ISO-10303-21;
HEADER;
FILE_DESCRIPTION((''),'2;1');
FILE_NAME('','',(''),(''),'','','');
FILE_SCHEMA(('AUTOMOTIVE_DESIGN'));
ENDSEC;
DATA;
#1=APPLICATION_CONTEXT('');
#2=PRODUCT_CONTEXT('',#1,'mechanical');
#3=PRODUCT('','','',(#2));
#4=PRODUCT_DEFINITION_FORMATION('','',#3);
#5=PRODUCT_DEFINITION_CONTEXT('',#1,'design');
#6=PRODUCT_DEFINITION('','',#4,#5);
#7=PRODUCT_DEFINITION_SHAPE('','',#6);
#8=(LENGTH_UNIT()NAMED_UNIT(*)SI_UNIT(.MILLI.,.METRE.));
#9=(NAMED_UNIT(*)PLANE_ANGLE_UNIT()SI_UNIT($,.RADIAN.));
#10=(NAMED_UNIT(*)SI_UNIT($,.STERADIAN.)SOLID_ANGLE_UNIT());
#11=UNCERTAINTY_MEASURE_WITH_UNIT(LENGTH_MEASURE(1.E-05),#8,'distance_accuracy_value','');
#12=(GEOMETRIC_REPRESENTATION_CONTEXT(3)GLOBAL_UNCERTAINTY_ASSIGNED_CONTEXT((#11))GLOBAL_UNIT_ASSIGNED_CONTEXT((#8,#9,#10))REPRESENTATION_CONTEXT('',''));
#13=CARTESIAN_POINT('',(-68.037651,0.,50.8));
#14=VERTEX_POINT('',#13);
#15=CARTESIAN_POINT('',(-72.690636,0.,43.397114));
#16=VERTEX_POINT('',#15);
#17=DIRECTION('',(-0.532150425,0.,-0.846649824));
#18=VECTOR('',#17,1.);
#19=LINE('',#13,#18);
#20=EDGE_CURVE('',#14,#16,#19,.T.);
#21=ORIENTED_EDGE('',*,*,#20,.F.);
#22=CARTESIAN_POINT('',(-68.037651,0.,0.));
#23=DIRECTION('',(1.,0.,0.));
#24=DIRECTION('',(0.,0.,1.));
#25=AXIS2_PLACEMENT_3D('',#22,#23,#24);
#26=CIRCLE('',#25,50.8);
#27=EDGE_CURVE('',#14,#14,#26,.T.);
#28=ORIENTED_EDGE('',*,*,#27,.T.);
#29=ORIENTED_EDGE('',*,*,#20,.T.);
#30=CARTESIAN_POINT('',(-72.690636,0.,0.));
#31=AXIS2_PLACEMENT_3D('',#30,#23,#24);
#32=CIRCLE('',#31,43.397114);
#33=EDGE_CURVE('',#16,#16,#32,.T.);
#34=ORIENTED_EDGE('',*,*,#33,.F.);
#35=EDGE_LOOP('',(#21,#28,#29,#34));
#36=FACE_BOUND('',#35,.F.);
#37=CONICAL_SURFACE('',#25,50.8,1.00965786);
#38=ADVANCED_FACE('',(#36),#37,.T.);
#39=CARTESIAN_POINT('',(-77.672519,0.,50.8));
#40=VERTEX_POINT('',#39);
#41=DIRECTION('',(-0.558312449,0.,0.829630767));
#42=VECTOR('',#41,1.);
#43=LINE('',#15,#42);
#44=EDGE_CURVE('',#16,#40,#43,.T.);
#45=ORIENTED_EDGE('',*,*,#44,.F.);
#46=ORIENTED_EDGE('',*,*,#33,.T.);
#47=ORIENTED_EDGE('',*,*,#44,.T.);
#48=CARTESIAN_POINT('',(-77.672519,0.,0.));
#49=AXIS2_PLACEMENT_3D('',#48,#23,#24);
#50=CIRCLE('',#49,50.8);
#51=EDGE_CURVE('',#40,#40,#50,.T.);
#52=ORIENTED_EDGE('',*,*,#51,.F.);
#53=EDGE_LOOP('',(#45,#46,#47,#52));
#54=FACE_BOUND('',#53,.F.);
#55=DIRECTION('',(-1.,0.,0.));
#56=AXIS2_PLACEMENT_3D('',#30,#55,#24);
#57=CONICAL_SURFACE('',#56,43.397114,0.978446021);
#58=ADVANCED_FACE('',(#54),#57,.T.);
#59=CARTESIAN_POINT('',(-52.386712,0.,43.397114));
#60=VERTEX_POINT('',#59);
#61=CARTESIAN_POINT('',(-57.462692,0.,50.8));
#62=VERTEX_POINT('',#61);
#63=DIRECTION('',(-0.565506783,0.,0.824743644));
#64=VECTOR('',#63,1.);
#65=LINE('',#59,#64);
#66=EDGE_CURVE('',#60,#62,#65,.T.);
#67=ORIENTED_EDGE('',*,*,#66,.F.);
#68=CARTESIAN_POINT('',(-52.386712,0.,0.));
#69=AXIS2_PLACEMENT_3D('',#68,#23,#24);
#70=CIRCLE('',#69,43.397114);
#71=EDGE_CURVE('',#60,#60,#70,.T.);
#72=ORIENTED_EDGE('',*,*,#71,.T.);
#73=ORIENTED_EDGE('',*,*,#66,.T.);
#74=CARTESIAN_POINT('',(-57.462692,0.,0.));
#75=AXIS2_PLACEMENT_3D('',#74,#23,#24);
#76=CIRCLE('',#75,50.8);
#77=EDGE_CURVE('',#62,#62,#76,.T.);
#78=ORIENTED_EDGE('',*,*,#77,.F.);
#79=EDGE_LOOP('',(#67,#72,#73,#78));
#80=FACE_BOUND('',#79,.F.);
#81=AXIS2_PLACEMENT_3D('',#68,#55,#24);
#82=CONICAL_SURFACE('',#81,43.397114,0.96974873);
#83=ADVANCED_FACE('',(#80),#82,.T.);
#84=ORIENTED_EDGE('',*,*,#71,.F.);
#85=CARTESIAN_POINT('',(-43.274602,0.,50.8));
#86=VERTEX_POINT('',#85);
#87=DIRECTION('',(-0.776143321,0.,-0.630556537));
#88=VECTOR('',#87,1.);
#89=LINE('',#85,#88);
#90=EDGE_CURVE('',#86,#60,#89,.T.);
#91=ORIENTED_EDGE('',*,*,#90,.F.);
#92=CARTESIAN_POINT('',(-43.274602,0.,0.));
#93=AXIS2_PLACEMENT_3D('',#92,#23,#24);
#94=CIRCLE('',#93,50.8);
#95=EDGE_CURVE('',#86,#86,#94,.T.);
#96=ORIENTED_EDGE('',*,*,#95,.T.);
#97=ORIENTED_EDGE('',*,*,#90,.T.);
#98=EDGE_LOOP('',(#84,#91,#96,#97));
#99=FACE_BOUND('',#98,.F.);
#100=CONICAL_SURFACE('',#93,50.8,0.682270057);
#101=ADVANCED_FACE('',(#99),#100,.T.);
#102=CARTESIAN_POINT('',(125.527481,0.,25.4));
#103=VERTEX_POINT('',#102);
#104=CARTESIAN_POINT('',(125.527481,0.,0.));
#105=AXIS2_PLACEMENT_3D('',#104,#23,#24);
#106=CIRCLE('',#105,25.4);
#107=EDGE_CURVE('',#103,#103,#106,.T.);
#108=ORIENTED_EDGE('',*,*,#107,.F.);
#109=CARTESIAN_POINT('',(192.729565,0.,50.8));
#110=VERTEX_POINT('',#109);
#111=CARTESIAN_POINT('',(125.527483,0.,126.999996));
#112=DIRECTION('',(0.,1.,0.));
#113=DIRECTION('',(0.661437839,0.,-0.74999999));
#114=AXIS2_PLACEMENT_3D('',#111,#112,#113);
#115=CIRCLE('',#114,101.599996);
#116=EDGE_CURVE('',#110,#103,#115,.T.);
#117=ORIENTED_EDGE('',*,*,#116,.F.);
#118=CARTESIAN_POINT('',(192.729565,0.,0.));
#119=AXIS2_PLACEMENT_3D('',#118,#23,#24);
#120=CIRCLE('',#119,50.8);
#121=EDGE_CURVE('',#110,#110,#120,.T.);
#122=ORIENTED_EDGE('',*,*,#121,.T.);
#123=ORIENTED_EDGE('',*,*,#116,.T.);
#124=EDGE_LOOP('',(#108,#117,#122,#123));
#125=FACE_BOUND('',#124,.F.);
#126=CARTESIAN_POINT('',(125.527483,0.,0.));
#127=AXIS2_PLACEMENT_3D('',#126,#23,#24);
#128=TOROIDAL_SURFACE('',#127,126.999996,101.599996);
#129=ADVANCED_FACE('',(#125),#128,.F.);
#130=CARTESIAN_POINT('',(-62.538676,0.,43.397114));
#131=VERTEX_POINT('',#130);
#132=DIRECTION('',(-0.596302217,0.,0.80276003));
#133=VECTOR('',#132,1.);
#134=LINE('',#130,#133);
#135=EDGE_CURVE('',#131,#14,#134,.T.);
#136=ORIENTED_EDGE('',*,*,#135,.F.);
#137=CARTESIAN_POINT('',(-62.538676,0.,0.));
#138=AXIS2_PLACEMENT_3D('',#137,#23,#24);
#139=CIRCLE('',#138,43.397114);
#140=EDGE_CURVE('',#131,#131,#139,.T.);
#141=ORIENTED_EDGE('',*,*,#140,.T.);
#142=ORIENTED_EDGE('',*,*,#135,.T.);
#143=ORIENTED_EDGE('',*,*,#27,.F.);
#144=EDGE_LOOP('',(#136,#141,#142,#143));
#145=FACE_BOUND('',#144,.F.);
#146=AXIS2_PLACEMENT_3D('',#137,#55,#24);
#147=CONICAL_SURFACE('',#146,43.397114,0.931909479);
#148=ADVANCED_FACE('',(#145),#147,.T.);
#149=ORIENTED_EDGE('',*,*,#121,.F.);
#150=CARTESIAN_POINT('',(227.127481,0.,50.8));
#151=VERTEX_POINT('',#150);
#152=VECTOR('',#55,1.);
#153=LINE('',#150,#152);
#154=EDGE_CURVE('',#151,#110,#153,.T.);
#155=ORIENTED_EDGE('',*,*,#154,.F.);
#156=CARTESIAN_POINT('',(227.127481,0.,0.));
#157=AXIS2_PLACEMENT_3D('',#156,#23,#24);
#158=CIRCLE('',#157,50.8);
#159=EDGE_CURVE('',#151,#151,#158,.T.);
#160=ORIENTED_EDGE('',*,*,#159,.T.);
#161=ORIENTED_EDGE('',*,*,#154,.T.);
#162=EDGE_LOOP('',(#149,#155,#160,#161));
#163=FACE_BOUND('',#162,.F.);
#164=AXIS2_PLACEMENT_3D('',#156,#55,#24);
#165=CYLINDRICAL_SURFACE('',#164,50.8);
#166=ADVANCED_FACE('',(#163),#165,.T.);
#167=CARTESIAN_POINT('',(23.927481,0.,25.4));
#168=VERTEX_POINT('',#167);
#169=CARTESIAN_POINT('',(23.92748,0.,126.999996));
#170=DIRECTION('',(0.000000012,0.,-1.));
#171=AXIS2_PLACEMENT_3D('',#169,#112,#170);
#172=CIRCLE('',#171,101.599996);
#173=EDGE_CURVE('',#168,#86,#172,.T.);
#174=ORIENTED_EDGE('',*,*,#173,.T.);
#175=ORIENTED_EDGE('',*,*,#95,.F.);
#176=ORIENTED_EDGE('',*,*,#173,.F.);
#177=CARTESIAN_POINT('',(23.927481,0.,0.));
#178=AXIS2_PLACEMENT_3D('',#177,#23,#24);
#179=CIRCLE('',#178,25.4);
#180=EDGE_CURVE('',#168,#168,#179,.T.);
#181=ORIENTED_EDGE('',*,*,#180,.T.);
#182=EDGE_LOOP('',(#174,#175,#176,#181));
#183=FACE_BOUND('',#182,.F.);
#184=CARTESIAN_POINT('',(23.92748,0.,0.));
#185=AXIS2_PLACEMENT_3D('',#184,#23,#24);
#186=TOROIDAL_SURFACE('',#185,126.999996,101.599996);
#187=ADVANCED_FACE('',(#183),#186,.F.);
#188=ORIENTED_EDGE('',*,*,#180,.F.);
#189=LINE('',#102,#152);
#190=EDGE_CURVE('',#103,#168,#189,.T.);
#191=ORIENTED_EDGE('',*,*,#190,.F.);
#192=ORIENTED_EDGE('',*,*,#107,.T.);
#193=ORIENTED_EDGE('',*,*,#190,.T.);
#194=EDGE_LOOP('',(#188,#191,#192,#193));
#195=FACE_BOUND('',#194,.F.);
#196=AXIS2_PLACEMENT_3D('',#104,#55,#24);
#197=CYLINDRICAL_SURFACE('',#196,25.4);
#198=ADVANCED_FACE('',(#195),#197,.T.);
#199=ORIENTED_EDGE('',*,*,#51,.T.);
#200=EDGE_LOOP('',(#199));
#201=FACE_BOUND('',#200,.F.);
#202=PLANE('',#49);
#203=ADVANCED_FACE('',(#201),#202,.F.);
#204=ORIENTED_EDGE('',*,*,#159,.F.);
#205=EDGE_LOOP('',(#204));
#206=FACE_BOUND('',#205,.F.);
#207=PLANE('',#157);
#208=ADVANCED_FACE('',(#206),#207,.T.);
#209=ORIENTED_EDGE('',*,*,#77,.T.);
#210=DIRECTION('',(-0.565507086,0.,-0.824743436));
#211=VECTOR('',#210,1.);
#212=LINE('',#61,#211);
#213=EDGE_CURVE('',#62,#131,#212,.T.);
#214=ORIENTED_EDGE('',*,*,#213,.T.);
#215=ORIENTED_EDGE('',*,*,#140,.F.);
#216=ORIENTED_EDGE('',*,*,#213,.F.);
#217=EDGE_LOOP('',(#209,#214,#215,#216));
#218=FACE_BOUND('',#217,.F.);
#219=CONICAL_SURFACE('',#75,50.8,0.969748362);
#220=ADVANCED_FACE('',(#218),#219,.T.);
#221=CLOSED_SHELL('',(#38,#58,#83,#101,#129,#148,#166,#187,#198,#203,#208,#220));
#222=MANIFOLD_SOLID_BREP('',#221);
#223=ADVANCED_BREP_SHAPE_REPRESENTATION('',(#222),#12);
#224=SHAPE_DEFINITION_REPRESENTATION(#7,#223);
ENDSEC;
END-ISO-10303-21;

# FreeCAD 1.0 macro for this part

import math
import FreeCAD as App
import Part
import Sketcher

V = App.Vector
Q = App.Units.Quantity

doc = App.newDocument("Part")
body = doc.addObject("PartDesign::Body", "Body")

# Sketch on XZ plane
sketch1 = body.newObject("Sketcher::SketchObject", "Sketch")
sketch1.AttachmentSupport = (doc.getObject("XZ_Plane"), [""])
sketch1.MapMode = "FlatFace"
sketch1.addGeometry([
    Part.LineSegment(V(-77.672519, 50.8, 0), V(-77.672519, 0, 0)),  # 0
    Part.LineSegment(V(-77.672519, 0, 0), V(227.127481, 0, 0)),  # 1
    Part.LineSegment(V(227.127481, 0, 0), V(227.127481, 50.8, 0)),  # 2
    Part.LineSegment(V(227.127481, 50.8, 0), V(192.729565, 50.8, 0)),  # 3
    Part.ArcOfCircle(Part.Circle(V(125.527483, 126.999996, 0), V(0, 0, 1), 101.599996), math.radians(-90.000001), math.radians(-48.590377)),  # 4
    Part.LineSegment(V(125.527481, 25.4, 0), V(23.927481, 25.4, 0)),  # 5
    Part.ArcOfCircle(Part.Circle(V(23.92748, 126.999996, 0), V(0, 0, 1), 101.599996), math.radians(-131.409623), math.radians(-89.999999)),  # 6
    Part.LineSegment(V(-43.274602, 50.8, 0), V(-52.386712, 43.397114, 0)),  # 7
    Part.LineSegment(V(-52.386712, 43.397114, 0), V(-57.462692, 50.8, 0)),  # 8
    Part.LineSegment(V(-57.462692, 50.8, 0), V(-62.538676, 43.397114, 0)),  # 9
    Part.LineSegment(V(-62.538676, 43.397114, 0), V(-68.037651, 50.8, 0)),  # 10
    Part.LineSegment(V(-68.037651, 50.8, 0), V(-72.690636, 43.397114, 0)),  # 11
    Part.LineSegment(V(-72.690636, 43.397114, 0), V(-77.672519, 50.8, 0)),  # 12
], False)
sketch1.addConstraint([
    Sketcher.Constraint("Coincident", 0, 2, 1, 1),
    Sketcher.Constraint("Coincident", 1, 2, 2, 1),
    Sketcher.Constraint("Coincident", 2, 2, 3, 1),
    Sketcher.Constraint("Coincident", 3, 2, 4, 2),
    Sketcher.Constraint("Tangent", 4, 1, 5, 1),
    Sketcher.Constraint("Tangent", 5, 2, 6, 2),
    Sketcher.Constraint("Coincident", 6, 1, 7, 1),
    Sketcher.Constraint("Coincident", 7, 2, 8, 1),
    Sketcher.Constraint("Coincident", 8, 2, 9, 1),
    Sketcher.Constraint("Coincident", 9, 2, 10, 1),
    Sketcher.Constraint("Coincident", 10, 2, 11, 1),
    Sketcher.Constraint("Coincident", 11, 2, 12, 1),
    Sketcher.Constraint("Coincident", 12, 2, 0, 1),
    Sketcher.Constraint("Vertical", 0),
    Sketcher.Constraint("Horizontal", 1),
    Sketcher.Constraint("Vertical", 2),
    Sketcher.Constraint("Horizontal", 3),
    Sketcher.Constraint("Horizontal", 5),
    Sketcher.Constraint("Equal", 4, 6),
    Sketcher.Constraint("PointOnObject", 0, 2, -1),
    Sketcher.Constraint("Horizontal", 3, 2, 6, 1),
    Sketcher.Constraint("Horizontal", 6, 1, 8, 2),
    Sketcher.Constraint("Horizontal", 7, 2, 9, 2),
    Sketcher.Constraint("Horizontal", 8, 2, 10, 2),
    Sketcher.Constraint("Horizontal", 9, 2, 11, 2),
    Sketcher.Constraint("Horizontal", 10, 2, 12, 2),
    Sketcher.Constraint("Radius", 4, Q("3.9999998 in")),
    Sketcher.Constraint("DistanceX", 1, 1, 1, 2, Q("12 in")),
    Sketcher.Constraint("DistanceX", 5, 2, 5, 1, Q("4 in")),
    Sketcher.Constraint("DistanceY", 0, 2, 0, 1, Q("2 in")),
    Sketcher.Constraint("DistanceY", -1, 1, 4, 3, Q("4.9999998 in")),
    Sketcher.Constraint("DistanceX", 0, 2, 6, 3, Q("4 in")),
    Sketcher.Constraint("DistanceX", 6, 1, -1, 1, 43.274602),
    Sketcher.Constraint("Distance", 7, 11.740241),
    Sketcher.Constraint("Distance", 10, 9.221792),
    Sketcher.Constraint("Distance", 11, 8.74374),
    Sketcher.Constraint("Distance", 12, 8.923109),
    Sketcher.Constraint("DistanceX", 8, 2, -1, 1, 57.462692),
    Sketcher.Constraint("DistanceX", 10, 2, -1, 1, 68.037651),
])
revolution = body.newObject("PartDesign::Revolution", "Revolution")
revolution.Profile = sketch1
revolution.ReferenceAxis = (sketch1, ["H_Axis"])
revolution.Angle = 360

doc.recompute()
